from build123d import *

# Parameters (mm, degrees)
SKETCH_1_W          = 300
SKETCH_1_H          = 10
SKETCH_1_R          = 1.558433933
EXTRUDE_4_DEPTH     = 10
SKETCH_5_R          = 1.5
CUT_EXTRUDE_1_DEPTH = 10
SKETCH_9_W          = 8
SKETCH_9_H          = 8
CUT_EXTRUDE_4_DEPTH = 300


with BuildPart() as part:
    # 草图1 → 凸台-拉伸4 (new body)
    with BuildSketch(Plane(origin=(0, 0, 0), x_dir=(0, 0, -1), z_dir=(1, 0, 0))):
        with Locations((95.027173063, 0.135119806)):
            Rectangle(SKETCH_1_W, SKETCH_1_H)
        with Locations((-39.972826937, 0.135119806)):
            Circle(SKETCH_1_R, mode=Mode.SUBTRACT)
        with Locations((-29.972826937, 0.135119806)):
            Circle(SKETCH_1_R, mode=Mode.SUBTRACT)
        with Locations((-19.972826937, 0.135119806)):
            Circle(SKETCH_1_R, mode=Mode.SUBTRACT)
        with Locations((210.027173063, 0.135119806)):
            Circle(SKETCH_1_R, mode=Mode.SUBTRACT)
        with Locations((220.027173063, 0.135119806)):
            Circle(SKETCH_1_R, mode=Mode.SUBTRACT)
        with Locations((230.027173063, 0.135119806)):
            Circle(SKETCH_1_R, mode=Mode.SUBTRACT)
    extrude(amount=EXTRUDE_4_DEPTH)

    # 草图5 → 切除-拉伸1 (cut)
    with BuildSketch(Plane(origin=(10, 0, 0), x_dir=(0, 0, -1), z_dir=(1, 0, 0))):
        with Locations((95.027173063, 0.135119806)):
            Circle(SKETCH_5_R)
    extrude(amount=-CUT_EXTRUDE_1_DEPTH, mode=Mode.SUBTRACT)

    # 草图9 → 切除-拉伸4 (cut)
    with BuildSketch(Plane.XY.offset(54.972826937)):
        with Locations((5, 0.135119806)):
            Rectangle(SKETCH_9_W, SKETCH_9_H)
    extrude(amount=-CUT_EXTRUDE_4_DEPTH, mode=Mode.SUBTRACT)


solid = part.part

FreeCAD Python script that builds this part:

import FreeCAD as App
import Part
import Sketcher

V = App.Vector


def add_polygon(sketch, points):
    """Adds a closed chain of lines whose ends are joined by coincident constraints."""
    first, n = sketch.GeometryCount, len(points)
    for a, b in zip(points, points[1:] + points[:1]):
        sketch.addGeometry(Part.LineSegment(App.Vector(*a, 0), App.Vector(*b, 0)), False)
    for i in range(n):
        sketch.addConstraint(Sketcher.Constraint("Coincident", first + i, 2, first + (i + 1) % n, 1))

doc = App.newDocument("Part")
body = doc.addObject("PartDesign::Body", "Body")

sketch1 = body.newObject("Sketcher::SketchObject", "Sketch")
sketch1.AttachmentSupport = (doc.getObject("YZ_Plane"), [""])
sketch1.MapMode = "FlatFace"
add_polygon(sketch1, [(5.1, 55), (-4.9, 55), (-4.9, -245), (5.1, -245)])
sketch1.addGeometry(Part.Circle(V(0.1, 40, 0), V(0, 0, 1), 1.6), False)
sketch1.addGeometry(Part.Circle(V(0.1, 30, 0), V(0, 0, 1), 1.6), False)
sketch1.addGeometry(Part.Circle(V(0.1, 20, 0), V(0, 0, 1), 1.6), False)
sketch1.addGeometry(Part.Circle(V(0.1, -210, 0), V(0, 0, 1), 1.6), False)
sketch1.addGeometry(Part.Circle(V(0.1, -220, 0), V(0, 0, 1), 1.6), False)
sketch1.addGeometry(Part.Circle(V(0.1, -230, 0), V(0, 0, 1), 1.6), False)
sketch1.addConstraint([
    Sketcher.Constraint("Horizontal", 0),
    Sketcher.Constraint("Vertical", 1),
    Sketcher.Constraint("Horizontal", 2),
    Sketcher.Constraint("Vertical", 3),
    Sketcher.Constraint("Equal", 4, 5),
    Sketcher.Constraint("Equal", 5, 6),
    Sketcher.Constraint("Equal", 6, 7),
    Sketcher.Constraint("Equal", 7, 8),
    Sketcher.Constraint("Equal", 8, 9),
    Sketcher.Constraint("Vertical", 4, 3, 5, 3),
    Sketcher.Constraint("Vertical", 5, 3, 6, 3),
    Sketcher.Constraint("Vertical", 6, 3, 7, 3),
    Sketcher.Constraint("Vertical", 7, 3, 8, 3),
    Sketcher.Constraint("Vertical", 8, 3, 9, 3),
    Sketcher.Constraint("DistanceX", 0, 2, 0, 1, 10.0),
    Sketcher.Constraint("DistanceY", 1, 2, 1, 1, 300.0),
    Sketcher.Constraint("DistanceY", 5, 3, 4, 3, 10.0),
    Sketcher.Constraint("DistanceY", 6, 3, 5, 3, 10.0),
    Sketcher.Constraint("DistanceY", 7, 3, 6, 3, 230.0),
    Sketcher.Constraint("DistanceY", 8, 3, 7, 3, 10.0),
    Sketcher.Constraint("DistanceY", 9, 3, 8, 3, 10.0),
    Sketcher.Constraint("DistanceX", 0, 2, 4, 3, 5.0),
    Sketcher.Constraint("DistanceY", 4, 3, 0, 2, 15.0),
    Sketcher.Constraint("Diameter", 4, 3.116868),
    Sketcher.Constraint("DistanceX", -1, 1, 4, 3, 0.13512),
    Sketcher.Constraint("DistanceY", -1, 1, 4, 3, 39.972827),
])
pad1 = body.newObject("PartDesign::Pad", "Pad")
pad1.Profile = sketch1
pad1.Length = 10

sketch2 = body.newObject("Sketcher::SketchObject", "Sketch001")
sketch2.AttachmentSupport = (doc.getObject("YZ_Plane"), [""])
sketch2.MapMode = "FlatFace"
sketch2.AttachmentOffset = App.Placement(V(0, 0, 10), App.Rotation())
sketch2.addGeometry(Part.Circle(V(0.1, -95, 0), V(0, 0, 1), 1.5), False)
sketch2.addConstraint([
    Sketcher.Constraint("Diameter", 0, 3.0),
    Sketcher.Constraint("DistanceX", -1, 1, 0, 3, 0.13512),
    Sketcher.Constraint("DistanceY", 0, 3, -1, 1, 95.027173),
])
pocket1 = body.newObject("PartDesign::Pocket", "Pocket")
pocket1.Profile = sketch2
pocket1.Length = 10

sketch3 = body.newObject("Sketcher::SketchObject", "Sketch002")
sketch3.AttachmentSupport = (doc.getObject("XY_Plane"), [""])
sketch3.MapMode = "FlatFace"
sketch3.AttachmentOffset = App.Placement(V(0, 0, 54.972827), App.Rotation())
add_polygon(sketch3, [(1, 4), (1, -4), (9, -4), (9, 4)])
sketch3.addConstraint([
    Sketcher.Constraint("Vertical", 0),
    Sketcher.Constraint("Horizontal", 1),
    Sketcher.Constraint("Vertical", 2),
    Sketcher.Constraint("Horizontal", 3),
    Sketcher.Constraint("Equal", 3, 0),
    Sketcher.Constraint("DistanceX", 1, 1, 1, 2, 8.0),
    Sketcher.Constraint("DistanceX", -1, 1, 0, 2, 1.0),
    Sketcher.Constraint("DistanceY", 0, 2, -1, 1, 3.86488),
])
pocket2 = body.newObject("PartDesign::Pocket", "Pocket001")
pocket2.Profile = sketch3
pocket2.Length = 300

doc.recompute()
